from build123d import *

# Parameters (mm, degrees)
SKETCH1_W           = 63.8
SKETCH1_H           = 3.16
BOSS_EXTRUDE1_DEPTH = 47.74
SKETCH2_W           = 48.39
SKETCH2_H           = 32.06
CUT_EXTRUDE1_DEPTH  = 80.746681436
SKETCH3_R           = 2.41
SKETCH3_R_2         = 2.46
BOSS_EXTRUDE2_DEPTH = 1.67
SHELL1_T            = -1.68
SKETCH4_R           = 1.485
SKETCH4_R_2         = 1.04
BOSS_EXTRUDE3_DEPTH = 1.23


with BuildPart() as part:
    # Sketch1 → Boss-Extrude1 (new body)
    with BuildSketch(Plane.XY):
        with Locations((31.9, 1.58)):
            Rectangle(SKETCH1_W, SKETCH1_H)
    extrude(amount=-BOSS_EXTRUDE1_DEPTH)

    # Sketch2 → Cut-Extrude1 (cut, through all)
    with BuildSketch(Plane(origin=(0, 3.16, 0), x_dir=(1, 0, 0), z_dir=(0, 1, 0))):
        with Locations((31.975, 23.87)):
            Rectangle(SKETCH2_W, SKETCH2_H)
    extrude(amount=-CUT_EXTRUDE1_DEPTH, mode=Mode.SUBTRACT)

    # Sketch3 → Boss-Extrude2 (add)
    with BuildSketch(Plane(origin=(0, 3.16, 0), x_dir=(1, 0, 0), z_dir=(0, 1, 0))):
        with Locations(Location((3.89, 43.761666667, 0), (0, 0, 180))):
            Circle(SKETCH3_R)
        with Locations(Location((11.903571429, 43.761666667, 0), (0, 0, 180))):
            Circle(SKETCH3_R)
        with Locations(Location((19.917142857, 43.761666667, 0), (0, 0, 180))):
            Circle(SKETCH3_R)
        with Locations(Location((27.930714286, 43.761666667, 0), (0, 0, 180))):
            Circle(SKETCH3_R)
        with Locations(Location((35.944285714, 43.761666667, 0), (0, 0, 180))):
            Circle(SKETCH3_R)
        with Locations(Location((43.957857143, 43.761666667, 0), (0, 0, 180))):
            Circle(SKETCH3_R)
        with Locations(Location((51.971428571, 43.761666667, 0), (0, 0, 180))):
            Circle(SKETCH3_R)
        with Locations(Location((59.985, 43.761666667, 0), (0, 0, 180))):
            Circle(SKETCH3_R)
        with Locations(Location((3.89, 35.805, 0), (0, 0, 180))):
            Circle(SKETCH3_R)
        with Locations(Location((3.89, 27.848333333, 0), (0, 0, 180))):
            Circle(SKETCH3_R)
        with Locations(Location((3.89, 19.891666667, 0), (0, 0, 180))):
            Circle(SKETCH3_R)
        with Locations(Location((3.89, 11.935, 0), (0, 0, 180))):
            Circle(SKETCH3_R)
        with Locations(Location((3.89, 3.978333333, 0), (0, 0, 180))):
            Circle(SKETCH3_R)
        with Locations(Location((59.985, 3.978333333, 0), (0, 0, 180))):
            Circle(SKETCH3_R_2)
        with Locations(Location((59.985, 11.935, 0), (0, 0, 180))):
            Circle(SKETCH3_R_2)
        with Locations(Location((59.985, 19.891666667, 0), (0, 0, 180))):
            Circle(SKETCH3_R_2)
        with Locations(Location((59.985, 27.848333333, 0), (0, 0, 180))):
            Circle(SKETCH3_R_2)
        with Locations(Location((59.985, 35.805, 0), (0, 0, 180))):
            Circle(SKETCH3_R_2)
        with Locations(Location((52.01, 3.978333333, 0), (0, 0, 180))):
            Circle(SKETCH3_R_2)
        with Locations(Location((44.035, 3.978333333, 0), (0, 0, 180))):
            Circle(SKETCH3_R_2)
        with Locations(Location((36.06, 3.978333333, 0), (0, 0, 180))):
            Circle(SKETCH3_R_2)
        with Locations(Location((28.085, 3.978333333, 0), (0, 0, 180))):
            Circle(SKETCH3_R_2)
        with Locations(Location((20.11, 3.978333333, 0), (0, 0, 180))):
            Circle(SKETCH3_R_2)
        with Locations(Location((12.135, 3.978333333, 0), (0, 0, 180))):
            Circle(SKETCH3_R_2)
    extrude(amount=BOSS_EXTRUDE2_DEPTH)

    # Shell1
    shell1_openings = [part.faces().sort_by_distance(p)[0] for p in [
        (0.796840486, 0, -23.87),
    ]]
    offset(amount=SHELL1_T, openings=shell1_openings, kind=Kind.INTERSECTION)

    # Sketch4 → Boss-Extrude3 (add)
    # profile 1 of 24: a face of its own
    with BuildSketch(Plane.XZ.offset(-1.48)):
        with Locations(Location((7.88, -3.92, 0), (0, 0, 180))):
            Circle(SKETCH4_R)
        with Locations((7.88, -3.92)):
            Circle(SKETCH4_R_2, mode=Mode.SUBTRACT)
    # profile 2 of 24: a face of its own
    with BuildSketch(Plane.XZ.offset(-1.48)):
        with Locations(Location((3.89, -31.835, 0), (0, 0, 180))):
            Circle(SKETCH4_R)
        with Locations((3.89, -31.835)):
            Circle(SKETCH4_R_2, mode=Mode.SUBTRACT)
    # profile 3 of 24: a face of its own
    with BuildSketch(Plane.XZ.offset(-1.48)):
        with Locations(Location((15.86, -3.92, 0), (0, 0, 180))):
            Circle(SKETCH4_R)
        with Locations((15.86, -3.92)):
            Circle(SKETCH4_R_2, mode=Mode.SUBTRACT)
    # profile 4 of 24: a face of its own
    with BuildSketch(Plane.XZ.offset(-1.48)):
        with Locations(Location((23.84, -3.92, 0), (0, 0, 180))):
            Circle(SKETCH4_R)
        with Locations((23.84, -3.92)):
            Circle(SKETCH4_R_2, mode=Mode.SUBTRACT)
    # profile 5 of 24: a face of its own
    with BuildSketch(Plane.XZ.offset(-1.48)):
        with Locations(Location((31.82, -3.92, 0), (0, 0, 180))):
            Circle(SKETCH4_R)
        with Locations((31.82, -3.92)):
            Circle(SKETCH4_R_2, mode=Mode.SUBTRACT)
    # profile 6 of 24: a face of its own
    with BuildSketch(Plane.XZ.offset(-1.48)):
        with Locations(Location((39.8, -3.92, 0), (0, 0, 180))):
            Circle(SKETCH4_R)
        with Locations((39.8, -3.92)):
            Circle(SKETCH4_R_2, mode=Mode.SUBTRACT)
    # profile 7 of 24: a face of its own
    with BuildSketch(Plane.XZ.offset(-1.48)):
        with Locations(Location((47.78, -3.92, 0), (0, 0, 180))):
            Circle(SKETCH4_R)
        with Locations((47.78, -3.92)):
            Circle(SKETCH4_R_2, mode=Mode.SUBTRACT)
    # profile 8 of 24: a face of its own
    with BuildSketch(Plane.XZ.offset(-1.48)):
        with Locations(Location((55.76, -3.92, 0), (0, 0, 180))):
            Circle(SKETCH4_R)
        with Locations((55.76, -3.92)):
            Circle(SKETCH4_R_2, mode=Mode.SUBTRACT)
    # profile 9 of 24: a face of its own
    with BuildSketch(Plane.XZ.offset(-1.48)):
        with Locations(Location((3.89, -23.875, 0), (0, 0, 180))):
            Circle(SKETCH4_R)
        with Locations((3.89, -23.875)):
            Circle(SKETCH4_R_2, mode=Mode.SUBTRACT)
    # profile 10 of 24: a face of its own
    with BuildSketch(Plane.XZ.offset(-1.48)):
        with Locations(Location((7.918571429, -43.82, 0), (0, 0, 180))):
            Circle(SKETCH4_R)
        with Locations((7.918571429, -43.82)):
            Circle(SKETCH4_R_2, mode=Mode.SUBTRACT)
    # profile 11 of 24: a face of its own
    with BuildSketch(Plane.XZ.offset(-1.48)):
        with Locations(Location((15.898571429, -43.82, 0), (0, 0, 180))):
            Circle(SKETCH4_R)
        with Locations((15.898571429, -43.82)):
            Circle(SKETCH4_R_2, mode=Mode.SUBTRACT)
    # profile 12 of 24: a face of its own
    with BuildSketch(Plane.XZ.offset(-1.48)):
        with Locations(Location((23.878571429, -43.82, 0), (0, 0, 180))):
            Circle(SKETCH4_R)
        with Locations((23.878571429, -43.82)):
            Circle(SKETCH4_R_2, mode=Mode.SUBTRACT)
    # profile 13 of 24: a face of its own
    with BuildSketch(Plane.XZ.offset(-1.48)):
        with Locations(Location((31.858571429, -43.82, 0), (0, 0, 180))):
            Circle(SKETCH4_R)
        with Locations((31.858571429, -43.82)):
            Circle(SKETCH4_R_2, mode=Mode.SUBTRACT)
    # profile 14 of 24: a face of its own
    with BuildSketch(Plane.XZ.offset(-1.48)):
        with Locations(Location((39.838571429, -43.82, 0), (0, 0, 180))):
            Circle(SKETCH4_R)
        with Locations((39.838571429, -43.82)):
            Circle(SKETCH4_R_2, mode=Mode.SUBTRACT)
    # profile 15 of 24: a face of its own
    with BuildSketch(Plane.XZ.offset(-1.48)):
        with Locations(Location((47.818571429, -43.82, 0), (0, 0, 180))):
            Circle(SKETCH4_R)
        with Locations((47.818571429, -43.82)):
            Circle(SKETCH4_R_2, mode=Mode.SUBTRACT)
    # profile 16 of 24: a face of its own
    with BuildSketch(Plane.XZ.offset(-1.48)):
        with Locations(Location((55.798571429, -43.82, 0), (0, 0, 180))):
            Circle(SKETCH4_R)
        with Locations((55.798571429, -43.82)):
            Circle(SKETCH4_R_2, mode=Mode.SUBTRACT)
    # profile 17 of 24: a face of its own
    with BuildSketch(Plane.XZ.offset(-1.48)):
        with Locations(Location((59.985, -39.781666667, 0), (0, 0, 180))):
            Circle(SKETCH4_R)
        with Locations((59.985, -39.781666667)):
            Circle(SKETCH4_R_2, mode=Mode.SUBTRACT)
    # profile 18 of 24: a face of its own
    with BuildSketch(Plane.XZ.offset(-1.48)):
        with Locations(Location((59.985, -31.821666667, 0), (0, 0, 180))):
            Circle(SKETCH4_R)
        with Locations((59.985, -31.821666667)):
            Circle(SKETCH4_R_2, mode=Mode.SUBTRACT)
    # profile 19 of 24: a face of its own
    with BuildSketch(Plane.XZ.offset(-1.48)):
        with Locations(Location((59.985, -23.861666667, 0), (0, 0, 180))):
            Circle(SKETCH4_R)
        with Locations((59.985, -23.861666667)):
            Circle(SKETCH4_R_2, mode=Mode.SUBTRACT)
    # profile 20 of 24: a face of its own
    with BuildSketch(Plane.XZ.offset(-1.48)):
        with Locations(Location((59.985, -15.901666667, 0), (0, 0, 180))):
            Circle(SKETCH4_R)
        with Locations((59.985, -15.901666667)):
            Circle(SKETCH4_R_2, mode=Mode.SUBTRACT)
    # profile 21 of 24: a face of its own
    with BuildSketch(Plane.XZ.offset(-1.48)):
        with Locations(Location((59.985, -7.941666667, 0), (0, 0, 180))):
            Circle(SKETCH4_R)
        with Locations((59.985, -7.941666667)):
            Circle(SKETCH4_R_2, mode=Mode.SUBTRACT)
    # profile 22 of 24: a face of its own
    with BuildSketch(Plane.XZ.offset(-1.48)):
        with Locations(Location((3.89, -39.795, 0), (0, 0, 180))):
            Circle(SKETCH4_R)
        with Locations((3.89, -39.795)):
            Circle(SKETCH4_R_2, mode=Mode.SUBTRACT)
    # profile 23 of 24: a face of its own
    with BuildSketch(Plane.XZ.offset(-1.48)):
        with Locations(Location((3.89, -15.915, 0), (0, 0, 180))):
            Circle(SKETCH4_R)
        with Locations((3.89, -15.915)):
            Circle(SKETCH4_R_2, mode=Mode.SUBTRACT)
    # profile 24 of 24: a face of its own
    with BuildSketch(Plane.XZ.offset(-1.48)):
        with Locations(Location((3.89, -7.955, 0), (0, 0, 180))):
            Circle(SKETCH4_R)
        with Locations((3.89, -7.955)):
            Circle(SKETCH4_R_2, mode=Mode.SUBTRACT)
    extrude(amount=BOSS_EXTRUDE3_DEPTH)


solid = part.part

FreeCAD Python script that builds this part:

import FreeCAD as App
import Part
import Sketcher

V = App.Vector
Q = App.Units.Quantity


def faces_at(feature, points):
    """Names of the faces that lie closest to the given points."""
    faces = feature.Shape.Faces
    near = lambda p: min(range(len(faces)), key=lambda i: faces[i].distToShape(Part.Vertex(*p))[0])
    return sorted({f"Face{near(p) + 1}" for p in points})

doc = App.newDocument("Part")
body = doc.addObject("PartDesign::Body", "Body")

sketch1 = body.newObject("Sketcher::SketchObject", "Sketch")
sketch1.AttachmentSupport = (doc.getObject("XY_Plane"), [""])
sketch1.MapMode = "FlatFace"
sketch1.addGeometry([
    Part.LineSegment(V(0, 3.2, 0), V(0, 0, 0)),
    Part.LineSegment(V(0, 0, 0), V(63.8, 0, 0)),
    Part.LineSegment(V(63.8, 0, 0), V(63.8, 3.2, 0)),
    Part.LineSegment(V(63.8, 3.2, 0), V(0, 3.2, 0)),
], False)
sketch1.addConstraint([
    Sketcher.Constraint("Coincident", 0, 2, 1, 1),
    Sketcher.Constraint("Coincident", 1, 2, 2, 1),
    Sketcher.Constraint("Coincident", 2, 2, 3, 1),
    Sketcher.Constraint("Coincident", 3, 2, 0, 1),
    Sketcher.Constraint("Vertical", 0),
    Sketcher.Constraint("Horizontal", 1),
    Sketcher.Constraint("Vertical", 2),
    Sketcher.Constraint("Horizontal", 3),
    Sketcher.Constraint("Coincident", 0, 2, -1, 1),
    Sketcher.Constraint("DistanceX", 1, 1, 1, 2, Q("63.8 mm")),
    Sketcher.Constraint("DistanceY", 0, 2, 0, 1, Q("3.16 mm")),
])
pad1 = body.newObject("PartDesign::Pad", "Pad")
pad1.Profile = sketch1
pad1.Length = 47.74
pad1.Reversed = True

sketch2 = body.newObject("Sketcher::SketchObject", "Sketch001")
sketch2.AttachmentSupport = (doc.getObject("XZ_Plane"), [""])
sketch2.MapMode = "FlatFace"
sketch2.AttachmentOffset = App.Placement(V(0, 0, -3.16), App.Rotation())
sketch2.addGeometry([
    Part.LineSegment(V(8, -40, 0), V(8, -8, 0)),
    Part.LineSegment(V(8, -8, 0), V(56, -8, 0)),
    Part.LineSegment(V(56, -8, 0), V(56, -40, 0)),
    Part.LineSegment(V(56, -40, 0), V(8, -40, 0)),
], False)
sketch2.addConstraint([
    Sketcher.Constraint("Coincident", 0, 2, 1, 1),
    Sketcher.Constraint("Coincident", 1, 2, 2, 1),
    Sketcher.Constraint("Coincident", 2, 2, 3, 1),
    Sketcher.Constraint("Coincident", 3, 2, 0, 1),
    Sketcher.Constraint("Vertical", 0),
    Sketcher.Constraint("Horizontal", 1),
    Sketcher.Constraint("Vertical", 2),
    Sketcher.Constraint("Horizontal", 3),
    Sketcher.Constraint("DistanceX", 1, 1, 1, 2, Q("48.39 mm")),
    Sketcher.Constraint("DistanceY", 0, 1, 0, 2, Q("32.06 mm")),
    Sketcher.Constraint("DistanceY", 2, 2, -1, 1, Q("39.9 mm")),
    Sketcher.Constraint("DistanceX", -1, 1, 0, 2, Q("7.78 mm")),
])
pocket1 = body.newObject("PartDesign::Pocket", "Pocket")
pocket1.Profile = sketch2
pocket1.Type = "ThroughAll"
pocket1.Reversed = True

sketch3 = body.newObject("Sketcher::SketchObject", "Sketch002")
sketch3.AttachmentSupport = (doc.getObject("XZ_Plane"), [""])
sketch3.MapMode = "FlatFace"
sketch3.AttachmentOffset = App.Placement(V(0, 0, -3.16), App.Rotation())
sketch3.addGeometry([
    Part.Circle(V(3.9, -43.8, 0), V(0, 0, 1), 2.4),
    Part.Circle(V(11.9, -43.8, 0), V(0, 0, 1), 2.4),
    Part.Circle(V(19.9, -43.8, 0), V(0, 0, 1), 2.4),
    Part.Circle(V(27.9, -43.8, 0), V(0, 0, 1), 2.4),
    Part.Circle(V(35.9, -43.8, 0), V(0, 0, 1), 2.4),
    Part.Circle(V(44, -43.8, 0), V(0, 0, 1), 2.4),
    Part.Circle(V(52, -43.8, 0), V(0, 0, 1), 2.4),
    Part.Circle(V(60, -43.8, 0), V(0, 0, 1), 2.4),
    Part.Circle(V(3.9, -35.8, 0), V(0, 0, 1), 2.4),
    Part.Circle(V(3.9, -27.8, 0), V(0, 0, 1), 2.4),
    Part.Circle(V(3.9, -19.9, 0), V(0, 0, 1), 2.4),
    Part.Circle(V(3.9, -11.9, 0), V(0, 0, 1), 2.4),
    Part.Circle(V(3.9, -4, 0), V(0, 0, 1), 2.4),
    Part.Circle(V(60, -4, 0), V(0, 0, 1), 2.5),
    Part.Circle(V(60, -11.9, 0), V(0, 0, 1), 2.5),
    Part.Circle(V(60, -19.9, 0), V(0, 0, 1), 2.5),
    Part.Circle(V(60, -27.8, 0), V(0, 0, 1), 2.5),
    Part.Circle(V(60, -35.8, 0), V(0, 0, 1), 2.5),
    Part.Circle(V(52, -4, 0), V(0, 0, 1), 2.5),
    Part.Circle(V(44, -4, 0), V(0, 0, 1), 2.5),
    Part.Circle(V(36.1, -4, 0), V(0, 0, 1), 2.5),
    Part.Circle(V(28.1, -4, 0), V(0, 0, 1), 2.5),
    Part.Circle(V(20.1, -4, 0), V(0, 0, 1), 2.5),
    Part.Circle(V(12.1, -4, 0), V(0, 0, 1), 2.5),
], False)
sketch3.addConstraint([
    Sketcher.Constraint("Equal", 0, 1),
    Sketcher.Constraint("Equal", 1, 2),
    Sketcher.Constraint("Equal", 2, 3),
    Sketcher.Constraint("Equal", 3, 4),
    Sketcher.Constraint("Equal", 4, 5),
    Sketcher.Constraint("Equal", 5, 6),
    Sketcher.Constraint("Equal", 6, 7),
    Sketcher.Constraint("Equal", 7, 8),
    Sketcher.Constraint("Equal", 8, 9),
    Sketcher.Constraint("Equal", 9, 10),
    Sketcher.Constraint("Equal", 10, 11),
    Sketcher.Constraint("Equal", 11, 12),
    Sketcher.Constraint("Equal", 13, 14),
    Sketcher.Constraint("Equal", 14, 15),
    Sketcher.Constraint("Equal", 15, 16),
    Sketcher.Constraint("Equal", 16, 17),
    Sketcher.Constraint("Equal", 17, 18),
    Sketcher.Constraint("Equal", 18, 19),
    Sketcher.Constraint("Equal", 19, 20),
    Sketcher.Constraint("Equal", 20, 21),
    Sketcher.Constraint("Equal", 21, 22),
    Sketcher.Constraint("Equal", 22, 23),
    Sketcher.Constraint("Horizontal", 0, 3, 1, 3),
    Sketcher.Constraint("Horizontal", 1, 3, 2, 3),
    Sketcher.Constraint("Horizontal", 2, 3, 3, 3),
    Sketcher.Constraint("Horizontal", 3, 3, 4, 3),
    Sketcher.Constraint("Horizontal", 4, 3, 5, 3),
    Sketcher.Constraint("Horizontal", 5, 3, 6, 3),
    Sketcher.Constraint("Horizontal", 6, 3, 7, 3),
    Sketcher.Constraint("Horizontal", 12, 3, 13, 3),
    Sketcher.Constraint("Horizontal", 11, 3, 14, 3),
    Sketcher.Constraint("Horizontal", 10, 3, 15, 3),
    Sketcher.Constraint("Horizontal", 9, 3, 16, 3),
    Sketcher.Constraint("Horizontal", 8, 3, 17, 3),
    Sketcher.Constraint("Horizontal", 13, 3, 18, 3),
    Sketcher.Constraint("Horizontal", 18, 3, 19, 3),
    Sketcher.Constraint("Horizontal", 19, 3, 20, 3),
    Sketcher.Constraint("Horizontal", 20, 3, 21, 3),
    Sketcher.Constraint("Horizontal", 21, 3, 22, 3),
    Sketcher.Constraint("Horizontal", 22, 3, 23, 3),
    Sketcher.Constraint("Vertical", 0, 3, 8, 3),
    Sketcher.Constraint("Vertical", 8, 3, 9, 3),
    Sketcher.Constraint("Vertical", 9, 3, 10, 3),
    Sketcher.Constraint("Vertical", 10, 3, 11, 3),
    Sketcher.Constraint("Vertical", 11, 3, 12, 3),
    Sketcher.Constraint("Vertical", 7, 3, 13, 3),
    Sketcher.Constraint("Vertical", 13, 3, 14, 3),
    Sketcher.Constraint("Vertical", 14, 3, 15, 3),
    Sketcher.Constraint("Vertical", 15, 3, 16, 3),
    Sketcher.Constraint("Vertical", 16, 3, 17, 3),
    Sketcher.Constraint("Diameter", 0, Q("4.82 mm")),
    Sketcher.Constraint("Diameter", 13, Q("4.92 mm")),
    Sketcher.Constraint("DistanceX", -1, 1, 0, 3, Q("3.89 mm")),
    Sketcher.Constraint("DistanceX", -1, 1, 18, 3, Q("52.01 mm")),
    Sketcher.Constraint("DistanceX", -1, 1, 20, 3, Q("36.06 mm")),
    Sketcher.Constraint("DistanceX", -1, 1, 22, 3, Q("20.11 mm")),
    Sketcher.Constraint("DistanceY", 0, 3, 10, 3, Q("23.87 mm")),
    Sketcher.Constraint("DistanceY", 8, 3, 11, 3, Q("23.87 mm")),
    Sketcher.Constraint("DistanceY", 9, 3, 12, 3, Q("23.87 mm")),
    Sketcher.Constraint("DistanceX", 19, 3, 13, 3, Q("15.95 mm")),
    Sketcher.Constraint("DistanceX", 21, 3, 19, 3, Q("15.95 mm")),
    Sketcher.Constraint("DistanceX", 23, 3, 21, 3, Q("15.95 mm")),
    Sketcher.Constraint("DistanceX", -1, 1, 7, 3, Q("59.985 mm")),
    Sketcher.Constraint("DistanceY", 8, 3, -1, 1, Q("35.805 mm")),
    Sketcher.Constraint("DistanceX", -1, 1, 1, 3, Q("11.903571 mm")),
    Sketcher.Constraint("DistanceX", -1, 1, 6, 3, Q("51.971429 mm")),
    Sketcher.Constraint("DistanceX", 1, 3, 2, 3, Q("8.013571 mm")),
    Sketcher.Constraint("DistanceX", 2, 3, 3, 3, Q("8.013571 mm")),
    Sketcher.Constraint("DistanceX", 3, 3, 4, 3, Q("8.013571 mm")),
    Sketcher.Constraint("DistanceX", 4, 3, 5, 3, Q("8.013571 mm")),
    Sketcher.Constraint("DistanceY", 0, 3, -1, 1, Q("43.761667 mm")),
    Sketcher.Constraint("DistanceY", 9, 3, -1, 1, Q("27.848333 mm")),
])
pad2 = body.newObject("PartDesign::Pad", "Pad001")
pad2.Profile = sketch3
pad2.Length = 1.67
pad2.Reversed = True
doc.recompute()

thickness = body.newObject("PartDesign::Thickness", "Thickness")
thickness.Base = (pad2, faces_at(pad2, [(6.38, 0, -23.87)]))
thickness.Value = 1.68
thickness.Reversed = True
thickness.Join = "Intersection"

sketch4 = body.newObject("Sketcher::SketchObject", "Sketch003")
sketch4.AttachmentSupport = (doc.getObject("XZ_Plane"), [""])
sketch4.MapMode = "FlatFace"
sketch4.AttachmentOffset = App.Placement(V(0, 0, -1.48), App.Rotation())
sketch4.addGeometry([
    Part.Circle(V(7.9, -3.9, 0), V(0, 0, 1), 1.5),
    Part.Circle(V(7.9, -3.9, 0), V(0, 0, 1), 1),
    Part.Circle(V(3.9, -31.8, 0), V(0, 0, 1), 1.5),
    Part.Circle(V(3.9, -31.8, 0), V(0, 0, 1), 1),
    Part.Circle(V(15.9, -3.9, 0), V(0, 0, 1), 1.5),
    Part.Circle(V(15.9, -3.9, 0), V(0, 0, 1), 1),
    Part.Circle(V(23.8, -3.9, 0), V(0, 0, 1), 1.5),
    Part.Circle(V(23.8, -3.9, 0), V(0, 0, 1), 1),
    Part.Circle(V(31.8, -3.9, 0), V(0, 0, 1), 1.5),
    Part.Circle(V(31.8, -3.9, 0), V(0, 0, 1), 1),
    Part.Circle(V(39.8, -3.9, 0), V(0, 0, 1), 1.5),
    Part.Circle(V(39.8, -3.9, 0), V(0, 0, 1), 1),
    Part.Circle(V(47.8, -3.9, 0), V(0, 0, 1), 1.5),
    Part.Circle(V(47.8, -3.9, 0), V(0, 0, 1), 1),
    Part.Circle(V(55.8, -3.9, 0), V(0, 0, 1), 1.5),
    Part.Circle(V(55.8, -3.9, 0), V(0, 0, 1), 1),
    Part.Circle(V(3.9, -23.9, 0), V(0, 0, 1), 1.5),
    Part.Circle(V(3.9, -23.9, 0), V(0, 0, 1), 1),
    Part.Circle(V(7.9, -43.8, 0), V(0, 0, 1), 1.5),
    Part.Circle(V(7.9, -43.8, 0), V(0, 0, 1), 1),
    Part.Circle(V(15.9, -43.8, 0), V(0, 0, 1), 1.5),
    Part.Circle(V(15.9, -43.8, 0), V(0, 0, 1), 1),
    Part.Circle(V(23.9, -43.8, 0), V(0, 0, 1), 1.5),
    Part.Circle(V(23.9, -43.8, 0), V(0, 0, 1), 1),
    Part.Circle(V(31.9, -43.8, 0), V(0, 0, 1), 1.5),
    Part.Circle(V(31.9, -43.8, 0), V(0, 0, 1), 1),
    Part.Circle(V(39.8, -43.8, 0), V(0, 0, 1), 1.5),
    Part.Circle(V(39.8, -43.8, 0), V(0, 0, 1), 1),
    Part.Circle(V(47.8, -43.8, 0), V(0, 0, 1), 1.5),
    Part.Circle(V(47.8, -43.8, 0), V(0, 0, 1), 1),
    Part.Circle(V(55.8, -43.8, 0), V(0, 0, 1), 1.5),
    Part.Circle(V(55.8, -43.8, 0), V(0, 0, 1), 1),
    Part.Circle(V(60, -39.8, 0), V(0, 0, 1), 1.5),
    Part.Circle(V(60, -39.8, 0), V(0, 0, 1), 1),
    Part.Circle(V(60, -31.8, 0), V(0, 0, 1), 1.5),
    Part.Circle(V(60, -31.8, 0), V(0, 0, 1), 1),
    Part.Circle(V(60, -23.9, 0), V(0, 0, 1), 1.5),
    Part.Circle(V(60, -23.9, 0), V(0, 0, 1), 1),
    Part.Circle(V(60, -15.9, 0), V(0, 0, 1), 1.5),
    Part.Circle(V(60, -15.9, 0), V(0, 0, 1), 1),
    Part.Circle(V(60, -7.9, 0), V(0, 0, 1), 1.5),
    Part.Circle(V(60, -7.9, 0), V(0, 0, 1), 1),
    Part.Circle(V(3.9, -39.8, 0), V(0, 0, 1), 1.5),
    Part.Circle(V(3.9, -39.8, 0), V(0, 0, 1), 1),
    Part.Circle(V(3.9, -15.9, 0), V(0, 0, 1), 1.5),
    Part.Circle(V(3.9, -15.9, 0), V(0, 0, 1), 1),
    Part.Circle(V(3.9, -8, 0), V(0, 0, 1), 1.5),
    Part.Circle(V(3.9, -8, 0), V(0, 0, 1), 1),
], False)
sketch4.addConstraint([
    Sketcher.Constraint("Coincident", 1, 3, 0, 3),
    Sketcher.Constraint("Coincident", 3, 3, 2, 3),
    Sketcher.Constraint("Coincident", 5, 3, 4, 3),
    Sketcher.Constraint("Coincident", 7, 3, 6, 3),
    Sketcher.Constraint("Coincident", 9, 3, 8, 3),
    Sketcher.Constraint("Coincident", 11, 3, 10, 3),
    Sketcher.Constraint("Coincident", 13, 3, 12, 3),
    Sketcher.Constraint("Coincident", 15, 3, 14, 3),
    Sketcher.Constraint("Coincident", 17, 3, 16, 3),
    Sketcher.Constraint("Coincident", 19, 3, 18, 3),
    Sketcher.Constraint("Coincident", 21, 3, 20, 3),
    Sketcher.Constraint("Coincident", 23, 3, 22, 3),
    Sketcher.Constraint("Coincident", 25, 3, 24, 3),
    Sketcher.Constraint("Coincident", 27, 3, 26, 3),
    Sketcher.Constraint("Coincident", 29, 3, 28, 3),
    Sketcher.Constraint("Coincident", 31, 3, 30, 3),
    Sketcher.Constraint("Coincident", 33, 3, 32, 3),
    Sketcher.Constraint("Coincident", 35, 3, 34, 3),
    Sketcher.Constraint("Coincident", 37, 3, 36, 3),
    Sketcher.Constraint("Coincident", 39, 3, 38, 3),
    Sketcher.Constraint("Coincident", 41, 3, 40, 3),
    Sketcher.Constraint("Coincident", 43, 3, 42, 3),
    Sketcher.Constraint("Coincident", 45, 3, 44, 3),
    Sketcher.Constraint("Coincident", 47, 3, 46, 3),
    Sketcher.Constraint("Equal", 0, 2),
    Sketcher.Constraint("Equal", 1, 3),
    Sketcher.Constraint("Equal", 2, 4),
    Sketcher.Constraint("Equal", 3, 5),
    Sketcher.Constraint("Equal", 4, 6),
    Sketcher.Constraint("Equal", 5, 7),
    Sketcher.Constraint("Equal", 6, 8),
    Sketcher.Constraint("Equal", 7, 9),
    Sketcher.Constraint("Equal", 8, 10),
    Sketcher.Constraint("Equal", 9, 11),
    Sketcher.Constraint("Equal", 10, 12),
    Sketcher.Constraint("Equal", 11, 13),
    Sketcher.Constraint("Equal", 12, 14),
    Sketcher.Constraint("Equal", 13, 15),
    Sketcher.Constraint("Equal", 14, 16),
    Sketcher.Constraint("Equal", 15, 17),
    Sketcher.Constraint("Equal", 16, 18),
    Sketcher.Constraint("Equal", 17, 19),
    Sketcher.Constraint("Equal", 18, 20),
    Sketcher.Constraint("Equal", 19, 21),
    Sketcher.Constraint("Equal", 20, 22),
    Sketcher.Constraint("Equal", 21, 23),
    Sketcher.Constraint("Equal", 22, 24),
    Sketcher.Constraint("Equal", 23, 25),
    Sketcher.Constraint("Equal", 24, 26),
    Sketcher.Constraint("Equal", 25, 27),
    Sketcher.Constraint("Equal", 26, 28),
    Sketcher.Constraint("Equal", 27, 29),
    Sketcher.Constraint("Equal", 28, 30),
    Sketcher.Constraint("Equal", 29, 31),
    Sketcher.Constraint("Equal", 30, 32),
    Sketcher.Constraint("Equal", 31, 33),
    Sketcher.Constraint("Equal", 32, 34),
    Sketcher.Constraint("Equal", 33, 35),
    Sketcher.Constraint("Equal", 34, 36),
    Sketcher.Constraint("Equal", 35, 37),
    Sketcher.Constraint("Equal", 36, 38),
    Sketcher.Constraint("Equal", 37, 39),
    Sketcher.Constraint("Equal", 38, 40),
    Sketcher.Constraint("Equal", 39, 41),
    Sketcher.Constraint("Equal", 40, 42),
    Sketcher.Constraint("Equal", 41, 43),
    Sketcher.Constraint("Equal", 42, 44),
    Sketcher.Constraint("Equal", 43, 45),
    Sketcher.Constraint("Equal", 44, 46),
    Sketcher.Constraint("Equal", 45, 47),
    Sketcher.Constraint("Horizontal", 1, 3, 4, 3),
    Sketcher.Constraint("Horizontal", 5, 3, 6, 3),
    Sketcher.Constraint("Horizontal", 7, 3, 8, 3),
    Sketcher.Constraint("Horizontal", 9, 3, 10, 3),
    Sketcher.Constraint("Horizontal", 11, 3, 12, 3),
    Sketcher.Constraint("Horizontal", 13, 3, 14, 3),
    Sketcher.Constraint("Horizontal", 19, 3, 20, 3),
    Sketcher.Constraint("Horizontal", 21, 3, 22, 3),
    Sketcher.Constraint("Horizontal", 23, 3, 24, 3),
    Sketcher.Constraint("Horizontal", 25, 3, 26, 3),
    Sketcher.Constraint("Horizontal", 27, 3, 28, 3),
    Sketcher.Constraint("Horizontal", 29, 3, 30, 3),
    Sketcher.Constraint("Vertical", 3, 3, 16, 3),
    Sketcher.Constraint("Vertical", 33, 3, 34, 3),
    Sketcher.Constraint("Vertical", 35, 3, 36, 3),
    Sketcher.Constraint("Vertical", 37, 3, 38, 3),
    Sketcher.Constraint("Vertical", 39, 3, 40, 3),
    Sketcher.Constraint("Vertical", 17, 3, 42, 3),
    Sketcher.Constraint("Vertical", 43, 3, 44, 3),
    Sketcher.Constraint("Vertical", 45, 3, 46, 3),
    Sketcher.Constraint("Diameter", 0, Q("2.97 mm")),
    Sketcher.Constraint("Diameter", 1, Q("2.08 mm")),
    Sketcher.Constraint("DistanceX", -1, 1, 10, 3, Q("39.8 mm")),
    Sketcher.Constraint("DistanceY", 18, 3, 0, 3, Q("39.9 mm")),
    Sketcher.Constraint("DistanceX", -1, 1, 0, 3, Q("7.88 mm")),
    Sketcher.Constraint("DistanceY", 0, 3, -1, 1, Q("3.92 mm")),
    Sketcher.Constraint("DistanceX", -1, 1, 2, 3, Q("3.89 mm")),
    Sketcher.Constraint("DistanceX", -1, 1, 4, 3, Q("15.86 mm")),
    Sketcher.Constraint("DistanceX", -1, 1, 6, 3, Q("23.84 mm")),
    Sketcher.Constraint("DistanceX", -1, 1, 8, 3, Q("31.82 mm")),
    Sketcher.Constraint("DistanceX", -1, 1, 12, 3, Q("47.78 mm")),
    Sketcher.Constraint("DistanceX", -1, 1, 14, 3, Q("55.76 mm")),
    Sketcher.Constraint("DistanceY", 2, 3, 16, 3, Q("7.96 mm")),
    Sketcher.Constraint("DistanceX", 18, 3, 20, 3, Q("7.98 mm")),
    Sketcher.Constraint("DistanceX", 20, 3, 22, 3, Q("7.98 mm")),
    Sketcher.Constraint("DistanceX", 22, 3, 24, 3, Q("7.98 mm")),
    Sketcher.Constraint("DistanceX", 24, 3, 26, 3, Q("7.98 mm")),
    Sketcher.Constraint("DistanceX", 26, 3, 28, 3, Q("7.98 mm")),
    Sketcher.Constraint("DistanceX", 28, 3, 30, 3, Q("7.98 mm")),
    Sketcher.Constraint("DistanceY", 32, 3, 34, 3, Q("7.96 mm")),
    Sketcher.Constraint("DistanceY", 34, 3, 36, 3, Q("7.96 mm")),
    Sketcher.Constraint("DistanceY", 36, 3, 38, 3, Q("7.96 mm")),
    Sketcher.Constraint("DistanceY", 38, 3, 40, 3, Q("7.96 mm")),
    Sketcher.Constraint("DistanceY", 42, 3, 2, 3, Q("7.96 mm")),
    Sketcher.Constraint("DistanceY", 16, 3, 44, 3, Q("7.96 mm")),
    Sketcher.Constraint("DistanceY", 44, 3, 46, 3, Q("7.96 mm")),
    Sketcher.Constraint("DistanceY", 2, 3, -1, 1, Q("31.835 mm")),
    Sketcher.Constraint("DistanceX", -1, 1, 32, 3, Q("59.985 mm")),
    Sketcher.Constraint("DistanceX", -1, 1, 18, 3, Q("7.918571 mm")),
    Sketcher.Constraint("DistanceY", 32, 3, -1, 1, Q("39.781667 mm")),
])
pad3 = body.newObject("PartDesign::Pad", "Pad002")
pad3.Profile = sketch4
pad3.Length = 1.23

doc.recompute()
